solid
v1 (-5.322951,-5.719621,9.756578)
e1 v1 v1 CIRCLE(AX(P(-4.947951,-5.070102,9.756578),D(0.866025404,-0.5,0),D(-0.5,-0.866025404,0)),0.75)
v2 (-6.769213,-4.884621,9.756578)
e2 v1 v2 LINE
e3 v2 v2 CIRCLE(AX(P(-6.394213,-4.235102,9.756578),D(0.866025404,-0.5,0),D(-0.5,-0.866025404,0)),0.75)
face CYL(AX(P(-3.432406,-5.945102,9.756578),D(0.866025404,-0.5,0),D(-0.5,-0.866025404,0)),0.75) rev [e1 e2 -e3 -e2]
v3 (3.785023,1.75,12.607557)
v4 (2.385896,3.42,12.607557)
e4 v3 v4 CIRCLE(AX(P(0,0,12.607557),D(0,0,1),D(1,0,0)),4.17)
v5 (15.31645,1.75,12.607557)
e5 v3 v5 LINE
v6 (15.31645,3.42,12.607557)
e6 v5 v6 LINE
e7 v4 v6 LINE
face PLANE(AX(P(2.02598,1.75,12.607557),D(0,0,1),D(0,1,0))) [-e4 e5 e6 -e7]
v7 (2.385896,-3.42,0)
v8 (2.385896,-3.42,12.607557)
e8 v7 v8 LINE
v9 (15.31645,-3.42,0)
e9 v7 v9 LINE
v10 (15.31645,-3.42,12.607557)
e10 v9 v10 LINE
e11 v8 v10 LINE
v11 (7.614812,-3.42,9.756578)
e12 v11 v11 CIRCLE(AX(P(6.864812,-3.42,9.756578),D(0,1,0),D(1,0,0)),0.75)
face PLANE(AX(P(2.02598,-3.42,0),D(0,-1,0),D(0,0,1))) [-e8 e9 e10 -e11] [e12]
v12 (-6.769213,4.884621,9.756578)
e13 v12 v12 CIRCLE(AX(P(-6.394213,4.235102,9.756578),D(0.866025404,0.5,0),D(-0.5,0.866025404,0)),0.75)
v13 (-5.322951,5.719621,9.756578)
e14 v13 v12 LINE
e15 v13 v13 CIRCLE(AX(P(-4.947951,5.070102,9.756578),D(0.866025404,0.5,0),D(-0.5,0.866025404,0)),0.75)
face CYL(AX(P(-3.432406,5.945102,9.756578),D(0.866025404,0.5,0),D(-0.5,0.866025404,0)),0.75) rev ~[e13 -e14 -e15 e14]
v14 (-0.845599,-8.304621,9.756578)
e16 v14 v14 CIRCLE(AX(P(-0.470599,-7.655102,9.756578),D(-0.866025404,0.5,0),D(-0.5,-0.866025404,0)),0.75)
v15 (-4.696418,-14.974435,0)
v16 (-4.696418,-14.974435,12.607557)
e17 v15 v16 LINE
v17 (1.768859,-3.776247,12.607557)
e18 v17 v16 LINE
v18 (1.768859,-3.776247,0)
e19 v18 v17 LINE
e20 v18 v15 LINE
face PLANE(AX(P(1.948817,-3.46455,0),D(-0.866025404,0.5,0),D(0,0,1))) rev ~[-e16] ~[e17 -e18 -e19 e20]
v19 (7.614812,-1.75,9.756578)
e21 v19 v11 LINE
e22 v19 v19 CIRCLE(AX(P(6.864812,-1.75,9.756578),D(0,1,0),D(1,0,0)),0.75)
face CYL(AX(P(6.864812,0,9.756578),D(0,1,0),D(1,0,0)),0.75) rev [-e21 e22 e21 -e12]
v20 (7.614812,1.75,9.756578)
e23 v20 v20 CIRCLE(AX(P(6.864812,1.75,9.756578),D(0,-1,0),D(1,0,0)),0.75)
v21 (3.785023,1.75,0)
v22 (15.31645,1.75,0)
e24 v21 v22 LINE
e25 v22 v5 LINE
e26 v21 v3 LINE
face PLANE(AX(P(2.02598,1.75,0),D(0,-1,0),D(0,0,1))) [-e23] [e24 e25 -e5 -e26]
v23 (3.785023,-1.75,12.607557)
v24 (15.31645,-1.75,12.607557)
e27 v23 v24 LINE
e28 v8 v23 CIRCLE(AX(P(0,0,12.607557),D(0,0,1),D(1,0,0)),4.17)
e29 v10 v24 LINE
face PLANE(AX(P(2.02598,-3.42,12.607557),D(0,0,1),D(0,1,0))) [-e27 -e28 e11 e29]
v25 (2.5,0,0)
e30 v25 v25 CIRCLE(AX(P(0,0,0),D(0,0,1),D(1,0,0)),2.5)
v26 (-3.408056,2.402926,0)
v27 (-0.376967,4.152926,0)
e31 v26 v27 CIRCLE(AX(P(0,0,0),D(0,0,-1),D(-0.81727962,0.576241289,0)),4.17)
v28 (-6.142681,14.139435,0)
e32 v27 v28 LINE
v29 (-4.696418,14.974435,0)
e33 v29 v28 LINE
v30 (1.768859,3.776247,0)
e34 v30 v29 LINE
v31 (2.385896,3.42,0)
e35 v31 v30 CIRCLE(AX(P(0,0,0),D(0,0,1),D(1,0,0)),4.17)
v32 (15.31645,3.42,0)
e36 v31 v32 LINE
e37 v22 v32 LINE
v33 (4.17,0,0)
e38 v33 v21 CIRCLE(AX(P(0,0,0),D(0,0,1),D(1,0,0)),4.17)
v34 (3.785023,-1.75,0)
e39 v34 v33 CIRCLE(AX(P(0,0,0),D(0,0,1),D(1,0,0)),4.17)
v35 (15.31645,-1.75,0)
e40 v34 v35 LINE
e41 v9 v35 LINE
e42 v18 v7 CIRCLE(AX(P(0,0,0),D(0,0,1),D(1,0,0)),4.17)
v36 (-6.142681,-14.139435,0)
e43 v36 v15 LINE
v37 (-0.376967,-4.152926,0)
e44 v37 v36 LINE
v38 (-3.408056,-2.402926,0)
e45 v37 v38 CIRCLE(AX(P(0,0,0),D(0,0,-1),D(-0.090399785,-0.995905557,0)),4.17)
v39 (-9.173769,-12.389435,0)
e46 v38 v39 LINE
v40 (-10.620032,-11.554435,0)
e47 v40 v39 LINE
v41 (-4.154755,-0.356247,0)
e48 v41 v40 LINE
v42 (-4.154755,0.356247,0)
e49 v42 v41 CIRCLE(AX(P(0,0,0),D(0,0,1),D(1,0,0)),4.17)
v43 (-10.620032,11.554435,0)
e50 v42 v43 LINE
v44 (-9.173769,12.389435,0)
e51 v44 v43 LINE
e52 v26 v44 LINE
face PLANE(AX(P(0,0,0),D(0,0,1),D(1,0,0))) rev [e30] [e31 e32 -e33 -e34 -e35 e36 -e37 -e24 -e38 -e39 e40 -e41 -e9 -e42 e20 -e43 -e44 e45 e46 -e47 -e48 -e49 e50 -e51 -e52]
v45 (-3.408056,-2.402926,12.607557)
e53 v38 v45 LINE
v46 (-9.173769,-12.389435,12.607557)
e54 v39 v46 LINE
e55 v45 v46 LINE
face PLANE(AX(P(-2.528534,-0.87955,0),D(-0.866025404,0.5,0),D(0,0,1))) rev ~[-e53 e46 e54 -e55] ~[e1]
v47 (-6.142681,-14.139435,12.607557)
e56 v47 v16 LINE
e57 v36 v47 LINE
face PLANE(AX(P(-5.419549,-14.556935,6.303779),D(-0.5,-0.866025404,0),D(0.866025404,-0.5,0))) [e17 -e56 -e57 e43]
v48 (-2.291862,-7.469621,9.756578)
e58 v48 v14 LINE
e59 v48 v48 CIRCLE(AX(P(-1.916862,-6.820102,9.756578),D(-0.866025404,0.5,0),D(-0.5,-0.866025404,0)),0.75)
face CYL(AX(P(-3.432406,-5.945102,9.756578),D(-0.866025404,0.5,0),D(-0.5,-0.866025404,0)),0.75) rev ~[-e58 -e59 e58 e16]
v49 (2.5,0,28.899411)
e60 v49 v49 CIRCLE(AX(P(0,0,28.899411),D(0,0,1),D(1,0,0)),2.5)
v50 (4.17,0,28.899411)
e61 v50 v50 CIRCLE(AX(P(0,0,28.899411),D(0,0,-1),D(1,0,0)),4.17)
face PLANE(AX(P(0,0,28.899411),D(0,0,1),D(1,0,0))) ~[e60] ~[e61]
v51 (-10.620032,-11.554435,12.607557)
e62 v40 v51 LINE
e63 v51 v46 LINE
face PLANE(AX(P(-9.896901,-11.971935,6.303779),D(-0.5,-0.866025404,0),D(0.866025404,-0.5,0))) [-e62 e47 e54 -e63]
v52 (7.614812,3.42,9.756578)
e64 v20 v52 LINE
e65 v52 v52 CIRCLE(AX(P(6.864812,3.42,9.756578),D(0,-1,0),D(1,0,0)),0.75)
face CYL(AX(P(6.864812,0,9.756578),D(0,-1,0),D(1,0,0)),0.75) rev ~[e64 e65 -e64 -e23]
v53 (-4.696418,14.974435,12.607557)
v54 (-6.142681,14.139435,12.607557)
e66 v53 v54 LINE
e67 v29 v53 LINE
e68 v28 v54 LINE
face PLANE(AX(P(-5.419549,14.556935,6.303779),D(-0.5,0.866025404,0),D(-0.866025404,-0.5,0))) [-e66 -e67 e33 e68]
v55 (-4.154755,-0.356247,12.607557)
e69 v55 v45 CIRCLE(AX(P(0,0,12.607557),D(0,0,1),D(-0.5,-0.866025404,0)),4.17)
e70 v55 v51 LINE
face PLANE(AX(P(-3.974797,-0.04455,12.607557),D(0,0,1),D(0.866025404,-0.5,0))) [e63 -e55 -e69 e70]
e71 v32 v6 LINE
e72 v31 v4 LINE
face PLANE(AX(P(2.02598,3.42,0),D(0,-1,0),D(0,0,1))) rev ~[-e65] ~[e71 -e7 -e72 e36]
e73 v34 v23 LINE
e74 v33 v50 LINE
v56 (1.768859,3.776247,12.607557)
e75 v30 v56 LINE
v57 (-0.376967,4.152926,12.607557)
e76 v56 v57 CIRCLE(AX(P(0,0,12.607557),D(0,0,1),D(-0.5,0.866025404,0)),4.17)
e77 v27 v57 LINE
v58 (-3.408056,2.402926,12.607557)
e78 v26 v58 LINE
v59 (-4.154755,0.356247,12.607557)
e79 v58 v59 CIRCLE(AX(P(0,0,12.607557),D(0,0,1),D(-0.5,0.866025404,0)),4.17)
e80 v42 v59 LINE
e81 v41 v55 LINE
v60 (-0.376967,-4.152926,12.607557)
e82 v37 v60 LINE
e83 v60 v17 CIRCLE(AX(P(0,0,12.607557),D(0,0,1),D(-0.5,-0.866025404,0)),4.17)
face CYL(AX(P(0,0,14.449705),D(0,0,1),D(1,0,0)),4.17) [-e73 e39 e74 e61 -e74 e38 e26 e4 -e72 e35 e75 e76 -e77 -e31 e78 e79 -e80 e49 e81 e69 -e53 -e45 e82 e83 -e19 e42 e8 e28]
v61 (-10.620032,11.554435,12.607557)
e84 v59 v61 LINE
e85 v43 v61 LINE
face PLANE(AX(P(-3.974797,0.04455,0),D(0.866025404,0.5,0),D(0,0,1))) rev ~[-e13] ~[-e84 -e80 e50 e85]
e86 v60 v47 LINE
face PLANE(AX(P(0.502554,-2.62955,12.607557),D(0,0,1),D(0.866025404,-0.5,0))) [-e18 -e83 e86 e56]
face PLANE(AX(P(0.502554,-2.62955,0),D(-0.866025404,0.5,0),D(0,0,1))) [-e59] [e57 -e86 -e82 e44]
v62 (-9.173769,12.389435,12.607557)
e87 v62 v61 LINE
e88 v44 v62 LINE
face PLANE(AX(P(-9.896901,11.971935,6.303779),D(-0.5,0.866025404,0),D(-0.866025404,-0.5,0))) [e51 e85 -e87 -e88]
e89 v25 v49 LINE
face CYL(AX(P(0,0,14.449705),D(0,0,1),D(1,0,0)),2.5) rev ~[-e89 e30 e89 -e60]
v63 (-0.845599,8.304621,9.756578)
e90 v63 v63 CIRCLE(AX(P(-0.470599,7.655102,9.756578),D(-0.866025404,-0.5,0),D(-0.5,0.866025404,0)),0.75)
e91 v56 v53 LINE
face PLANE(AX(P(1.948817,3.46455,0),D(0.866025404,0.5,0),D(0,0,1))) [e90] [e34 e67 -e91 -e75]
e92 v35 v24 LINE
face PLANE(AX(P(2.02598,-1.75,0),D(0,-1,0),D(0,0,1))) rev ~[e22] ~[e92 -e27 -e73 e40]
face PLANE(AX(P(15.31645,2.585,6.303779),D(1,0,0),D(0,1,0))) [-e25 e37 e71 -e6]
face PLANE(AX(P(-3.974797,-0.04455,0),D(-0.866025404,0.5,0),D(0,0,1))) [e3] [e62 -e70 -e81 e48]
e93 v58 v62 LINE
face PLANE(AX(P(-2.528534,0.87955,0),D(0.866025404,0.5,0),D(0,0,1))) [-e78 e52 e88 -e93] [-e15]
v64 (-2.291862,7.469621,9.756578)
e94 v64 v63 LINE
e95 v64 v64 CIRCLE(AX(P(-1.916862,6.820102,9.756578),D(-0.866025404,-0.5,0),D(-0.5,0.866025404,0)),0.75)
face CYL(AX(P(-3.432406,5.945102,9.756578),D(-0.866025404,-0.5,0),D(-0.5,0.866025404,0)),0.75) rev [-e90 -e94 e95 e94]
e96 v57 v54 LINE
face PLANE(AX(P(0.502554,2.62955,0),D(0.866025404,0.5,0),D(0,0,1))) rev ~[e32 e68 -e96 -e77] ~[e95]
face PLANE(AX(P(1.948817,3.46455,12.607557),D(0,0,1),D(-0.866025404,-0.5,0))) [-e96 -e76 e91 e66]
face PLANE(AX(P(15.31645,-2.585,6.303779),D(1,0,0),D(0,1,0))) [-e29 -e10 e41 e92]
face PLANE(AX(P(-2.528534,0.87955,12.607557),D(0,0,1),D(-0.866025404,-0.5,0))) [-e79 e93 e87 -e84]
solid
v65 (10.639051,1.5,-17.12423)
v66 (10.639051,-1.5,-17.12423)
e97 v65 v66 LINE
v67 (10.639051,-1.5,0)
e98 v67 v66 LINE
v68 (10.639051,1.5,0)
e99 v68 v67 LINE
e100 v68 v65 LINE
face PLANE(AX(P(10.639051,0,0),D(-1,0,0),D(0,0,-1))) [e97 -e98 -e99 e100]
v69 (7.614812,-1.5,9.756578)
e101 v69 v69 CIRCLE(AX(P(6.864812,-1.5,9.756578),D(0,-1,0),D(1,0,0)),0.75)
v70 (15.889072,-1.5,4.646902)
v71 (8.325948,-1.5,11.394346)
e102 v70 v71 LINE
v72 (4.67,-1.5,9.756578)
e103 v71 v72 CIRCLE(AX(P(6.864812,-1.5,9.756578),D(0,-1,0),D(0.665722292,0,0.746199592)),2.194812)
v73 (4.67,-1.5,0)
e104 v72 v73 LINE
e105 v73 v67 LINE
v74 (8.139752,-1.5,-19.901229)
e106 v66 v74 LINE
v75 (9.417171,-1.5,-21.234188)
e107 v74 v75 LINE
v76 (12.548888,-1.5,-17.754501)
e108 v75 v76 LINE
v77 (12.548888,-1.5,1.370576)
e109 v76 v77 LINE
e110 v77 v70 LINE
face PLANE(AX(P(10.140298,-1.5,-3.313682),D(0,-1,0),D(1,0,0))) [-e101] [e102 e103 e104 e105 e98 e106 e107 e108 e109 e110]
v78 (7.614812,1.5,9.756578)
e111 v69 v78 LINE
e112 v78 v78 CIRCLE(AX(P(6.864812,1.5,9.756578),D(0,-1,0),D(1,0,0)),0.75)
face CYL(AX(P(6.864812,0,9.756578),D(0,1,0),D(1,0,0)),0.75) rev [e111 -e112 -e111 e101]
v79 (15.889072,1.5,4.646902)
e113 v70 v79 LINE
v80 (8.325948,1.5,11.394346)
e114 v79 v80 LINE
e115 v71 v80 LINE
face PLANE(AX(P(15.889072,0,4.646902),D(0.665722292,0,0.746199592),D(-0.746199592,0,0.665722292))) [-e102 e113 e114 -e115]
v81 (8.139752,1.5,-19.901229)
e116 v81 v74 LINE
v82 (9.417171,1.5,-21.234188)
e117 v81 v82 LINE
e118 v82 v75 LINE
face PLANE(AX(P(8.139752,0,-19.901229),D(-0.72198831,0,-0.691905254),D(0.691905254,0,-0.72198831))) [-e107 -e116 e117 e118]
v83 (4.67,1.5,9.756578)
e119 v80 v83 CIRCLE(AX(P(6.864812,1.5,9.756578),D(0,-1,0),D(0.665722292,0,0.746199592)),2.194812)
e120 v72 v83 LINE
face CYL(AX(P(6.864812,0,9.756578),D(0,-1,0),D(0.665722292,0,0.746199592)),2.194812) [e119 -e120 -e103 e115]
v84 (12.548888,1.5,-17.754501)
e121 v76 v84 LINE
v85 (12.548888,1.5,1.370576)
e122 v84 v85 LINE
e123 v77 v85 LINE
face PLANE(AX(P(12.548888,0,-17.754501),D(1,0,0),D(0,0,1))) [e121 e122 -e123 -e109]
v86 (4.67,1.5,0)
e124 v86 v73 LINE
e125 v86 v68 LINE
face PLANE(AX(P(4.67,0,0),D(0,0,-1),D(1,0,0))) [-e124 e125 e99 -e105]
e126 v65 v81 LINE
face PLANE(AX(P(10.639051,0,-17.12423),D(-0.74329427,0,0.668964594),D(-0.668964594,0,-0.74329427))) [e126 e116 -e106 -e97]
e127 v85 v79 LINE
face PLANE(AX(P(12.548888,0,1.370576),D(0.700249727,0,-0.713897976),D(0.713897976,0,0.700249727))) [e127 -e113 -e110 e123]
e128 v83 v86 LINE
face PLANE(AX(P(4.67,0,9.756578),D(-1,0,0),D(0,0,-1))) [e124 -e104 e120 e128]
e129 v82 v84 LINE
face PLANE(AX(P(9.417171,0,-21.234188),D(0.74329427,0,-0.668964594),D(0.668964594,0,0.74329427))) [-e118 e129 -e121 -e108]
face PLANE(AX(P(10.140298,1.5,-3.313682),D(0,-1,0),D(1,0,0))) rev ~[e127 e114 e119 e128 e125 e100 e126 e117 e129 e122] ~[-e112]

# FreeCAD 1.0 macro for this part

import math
import FreeCAD as App
import Part
import Sketcher

V = App.Vector


def add_polygon(sketch, points):
    """Adds a closed chain of lines whose ends are joined by coincident constraints."""
    first, n = sketch.GeometryCount, len(points)
    for a, b in zip(points, points[1:] + points[:1]):
        sketch.addGeometry(Part.LineSegment(App.Vector(*a, 0), App.Vector(*b, 0)), False)
    for i in range(n):
        sketch.addConstraint(Sketcher.Constraint("Coincident", first + i, 2, first + (i + 1) % n, 1))

doc = App.newDocument("Part")
body = doc.addObject("PartDesign::Body", "Body")

sketch1 = body.newObject("Sketcher::SketchObject", "Sketch")
sketch1.AttachmentSupport = (doc.getObject("XZ_Plane"), [""])
sketch1.MapMode = "FlatFace"
sketch1.addGeometry(Part.LineSegment(V(4.7, 9.8, 0), V(4.7, 0, 0)), False)
sketch1.addGeometry(Part.LineSegment(V(4.7, 0, 0), V(10.6, 0, 0)), False)
sketch1.addGeometry(Part.LineSegment(V(10.6, 0, 0), V(10.6, -17.1, 0)), False)
sketch1.addGeometry(Part.LineSegment(V(10.6, -17.1, 0), V(8.1, -19.9, 0)), False)
sketch1.addGeometry(Part.LineSegment(V(8.1, -19.9, 0), V(9.4, -21.2, 0)), False)
sketch1.addGeometry(Part.LineSegment(V(9.4, -21.2, 0), V(12.5, -17.8, 0)), False)
sketch1.addGeometry(Part.LineSegment(V(12.5, -17.8, 0), V(12.5, 1.4, 0)), False)
sketch1.addGeometry(Part.LineSegment(V(12.5, 1.4, 0), V(15.9, 4.6, 0)), False)
sketch1.addGeometry(Part.LineSegment(V(15.9, 4.6, 0), V(8.3, 11.4, 0)), False)
sketch1.addGeometry(Part.ArcOfCircle(Part.Circle(V(6.9, 9.8, 0), V(0, 0, 1), 2.2), math.radians(48), math.radians(180)), False)
sketch1.addGeometry(Part.Circle(V(6.9, 9.8, 0), V(0, 0, 1), 0.8), False)
sketch1.addConstraint(Sketcher.Constraint("Coincident", 0, 2, 1, 1))
sketch1.addConstraint(Sketcher.Constraint("Coincident", 1, 2, 2, 1))
sketch1.addConstraint(Sketcher.Constraint("Coincident", 2, 2, 3, 1))
sketch1.addConstraint(Sketcher.Constraint("Coincident", 3, 2, 4, 1))
sketch1.addConstraint(Sketcher.Constraint("Coincident", 4, 2, 5, 1))
sketch1.addConstraint(Sketcher.Constraint("Coincident", 5, 2, 6, 1))
sketch1.addConstraint(Sketcher.Constraint("Coincident", 6, 2, 7, 1))
sketch1.addConstraint(Sketcher.Constraint("Coincident", 7, 2, 8, 1))
sketch1.addConstraint(Sketcher.Constraint("Tangent", 8, 2, 9, 1))
sketch1.addConstraint(Sketcher.Constraint("Tangent", 9, 2, 0, 1))
sketch1.addConstraint(Sketcher.Constraint("Vertical", 0))
sketch1.addConstraint(Sketcher.Constraint("Horizontal", 1))
sketch1.addConstraint(Sketcher.Constraint("Vertical", 2))
sketch1.addConstraint(Sketcher.Constraint("Vertical", 6))
sketch1.addConstraint(Sketcher.Constraint("Coincident", 10, 3, 9, 3))
sketch1.addConstraint(Sketcher.Constraint("PointOnObject", 0, 2, -1))
sketch1.addConstraint(Sketcher.Constraint("Parallel", 3, 5))
sketch1.addConstraint(Sketcher.Constraint("Diameter", 10, 1.5))
sketch1.addConstraint(Sketcher.Constraint("DistanceX", -1, 1, 0, 2, 4.67))
sketch1.addConstraint(Sketcher.Constraint("Radius", 9, 2.194812))
sketch1.addConstraint(Sketcher.Constraint("DistanceY", 3, 2, 2, 2, 2.776999))
sketch1.addConstraint(Sketcher.Constraint("DistanceX", 1, 1, 1, 2, 5.969051))
sketch1.addConstraint(Sketcher.Constraint("DistanceY", 0, 2, 0, 1, 9.756578))
sketch1.addConstraint(Sketcher.Constraint("DistanceY", 2, 2, 2, 1, 17.12423))
sketch1.addConstraint(Sketcher.Constraint("DistanceY", 5, 2, -1, 1, 17.754501))
sketch1.addConstraint(Sketcher.Constraint("DistanceY", -1, 1, 7, 2, 4.646902))
sketch1.addConstraint(Sketcher.Constraint("DistanceX", 3, 2, 2, 2, 2.499298))
sketch1.addConstraint(Sketcher.Constraint("Distance", 5, 4.681439))
sketch1.addConstraint(Sketcher.Constraint("DistanceY", 6, 1, 6, 2, 19.125077))
sketch1.addConstraint(Sketcher.Constraint("DistanceX", -1, 1, 4, 2, 9.417171))
sketch1.addConstraint(Sketcher.Constraint("DistanceX", -1, 1, 7, 2, 15.889072))
pad1 = body.newObject("PartDesign::Pad", "Pad")
pad1.Profile = sketch1
pad1.Length = 3
pad1.Midplane = True
body2 = doc.addObject("PartDesign::Body", "Body001")

sketch2 = body2.newObject("Sketcher::SketchObject", "Sketch001")
sketch2.AttachmentSupport = (doc.getObject("XZ_Plane001"), [""])
sketch2.MapMode = "FlatFace"
add_polygon(sketch2, [(2.5, 28.9), (2.5, 0), (4.2, 0), (4.2, 28.9)])
sketch2.addConstraint(Sketcher.Constraint("Vertical", 0))
sketch2.addConstraint(Sketcher.Constraint("Horizontal", 1))
sketch2.addConstraint(Sketcher.Constraint("Vertical", 2))
sketch2.addConstraint(Sketcher.Constraint("Horizontal", 3))
sketch2.addConstraint(Sketcher.Constraint("PointOnObject", 0, 2, -1))
sketch2.addConstraint(Sketcher.Constraint("DistanceX", 1, 1, 1, 2, 1.67))
sketch2.addConstraint(Sketcher.Constraint("DistanceX", -1, 1, 0, 2, 2.5))
sketch2.addConstraint(Sketcher.Constraint("DistanceY", 0, 2, 0, 1, 28.899411))
revolution = body2.newObject("PartDesign::Revolution", "Revolution")
revolution.Profile = sketch2
revolution.ReferenceAxis = (sketch2, ["V_Axis"])
revolution.Angle = 360

sketch3 = body2.newObject("Sketcher::SketchObject", "Sketch002")
sketch3.AttachmentSupport = (doc.getObject("YZ_Plane001"), [""])
sketch3.MapMode = "FlatFace"
sketch3.AttachmentOffset = App.Placement(V(0, 0, 2.02598), App.Rotation())
add_polygon(sketch3, [(1.8, 12.6), (1.8, 0), (3.4, 0), (3.4, 12.6)])
add_polygon(sketch3, [(-3.4, 12.6), (-3.4, 0), (-1.8, 0), (-1.8, 12.6)])
sketch3.addConstraint(Sketcher.Constraint("Vertical", 0))
sketch3.addConstraint(Sketcher.Constraint("Horizontal", 1))
sketch3.addConstraint(Sketcher.Constraint("Vertical", 2))
sketch3.addConstraint(Sketcher.Constraint("Horizontal", 3))
sketch3.addConstraint(Sketcher.Constraint("Vertical", 4))
sketch3.addConstraint(Sketcher.Constraint("Horizontal", 5))
sketch3.addConstraint(Sketcher.Constraint("Vertical", 6))
sketch3.addConstraint(Sketcher.Constraint("Horizontal", 7))
sketch3.addConstraint(Sketcher.Constraint("Symmetric", 1, 2, 4, 2, -1, 1))
sketch3.addConstraint(Sketcher.Constraint("Symmetric", 0, 2, 5, 2, -2))
sketch3.addConstraint(Sketcher.Constraint("Horizontal", 3, 2, 6, 2))
sketch3.addConstraint(Sketcher.Constraint("DistanceX", 1, 1, 1, 2, 1.67))
sketch3.addConstraint(Sketcher.Constraint("DistanceX", 5, 2, 0, 2, 3.5))
sketch3.addConstraint(Sketcher.Constraint("DistanceY", 0, 2, 0, 1, 12.607557))
pad2 = body2.newObject("PartDesign::Pad", "Pad001")
pad2.Profile = sketch3
pad2.Length = 13.29047

sketch4 = body2.newObject("Sketcher::SketchObject", "Sketch003")
sketch4.AttachmentSupport = (doc.getObject("XZ_Plane001"), [""])
sketch4.MapMode = "FlatFace"
sketch4.addGeometry(Part.Circle(V(6.9, 9.8, 0), V(0, 0, 1), 0.8), False)
sketch4.addConstraint(Sketcher.Constraint("Diameter", 0, 1.5))
sketch4.addConstraint(Sketcher.Constraint("DistanceY", -1, 1, 0, 3, 9.756578))
sketch4.addConstraint(Sketcher.Constraint("DistanceX", -1, 1, 0, 3, 6.864812))
pocket1 = body2.newObject("PartDesign::Pocket", "Pocket")
pocket1.Profile = sketch4
pocket1.Type = "ThroughAll"
pocket1.Midplane = True
body3 = doc.addObject("PartDesign::Body", "Body002")
doc.recompute()

body3.BaseFeature = body2
doc.recompute()

body4 = doc.addObject("PartDesign::Body", "Body003")
body4.BaseFeature = body2
body4.Placement = App.Placement(V(0, 0, 0), App.Rotation(V(0, 0, 1), 120))
boolean = body3.newObject("PartDesign::Boolean", "Boolean")
boolean.Type = "Fuse"
boolean.addObjects([body4])
doc.recompute()

body2.Placement = App.Placement(V(0, 0, 0), App.Rotation(V(0, 0, 1), 240))
boolean2 = body3.newObject("PartDesign::Boolean", "Boolean001")
boolean2.Type = "Fuse"
boolean2.addObjects([body2])

doc.recompute()
